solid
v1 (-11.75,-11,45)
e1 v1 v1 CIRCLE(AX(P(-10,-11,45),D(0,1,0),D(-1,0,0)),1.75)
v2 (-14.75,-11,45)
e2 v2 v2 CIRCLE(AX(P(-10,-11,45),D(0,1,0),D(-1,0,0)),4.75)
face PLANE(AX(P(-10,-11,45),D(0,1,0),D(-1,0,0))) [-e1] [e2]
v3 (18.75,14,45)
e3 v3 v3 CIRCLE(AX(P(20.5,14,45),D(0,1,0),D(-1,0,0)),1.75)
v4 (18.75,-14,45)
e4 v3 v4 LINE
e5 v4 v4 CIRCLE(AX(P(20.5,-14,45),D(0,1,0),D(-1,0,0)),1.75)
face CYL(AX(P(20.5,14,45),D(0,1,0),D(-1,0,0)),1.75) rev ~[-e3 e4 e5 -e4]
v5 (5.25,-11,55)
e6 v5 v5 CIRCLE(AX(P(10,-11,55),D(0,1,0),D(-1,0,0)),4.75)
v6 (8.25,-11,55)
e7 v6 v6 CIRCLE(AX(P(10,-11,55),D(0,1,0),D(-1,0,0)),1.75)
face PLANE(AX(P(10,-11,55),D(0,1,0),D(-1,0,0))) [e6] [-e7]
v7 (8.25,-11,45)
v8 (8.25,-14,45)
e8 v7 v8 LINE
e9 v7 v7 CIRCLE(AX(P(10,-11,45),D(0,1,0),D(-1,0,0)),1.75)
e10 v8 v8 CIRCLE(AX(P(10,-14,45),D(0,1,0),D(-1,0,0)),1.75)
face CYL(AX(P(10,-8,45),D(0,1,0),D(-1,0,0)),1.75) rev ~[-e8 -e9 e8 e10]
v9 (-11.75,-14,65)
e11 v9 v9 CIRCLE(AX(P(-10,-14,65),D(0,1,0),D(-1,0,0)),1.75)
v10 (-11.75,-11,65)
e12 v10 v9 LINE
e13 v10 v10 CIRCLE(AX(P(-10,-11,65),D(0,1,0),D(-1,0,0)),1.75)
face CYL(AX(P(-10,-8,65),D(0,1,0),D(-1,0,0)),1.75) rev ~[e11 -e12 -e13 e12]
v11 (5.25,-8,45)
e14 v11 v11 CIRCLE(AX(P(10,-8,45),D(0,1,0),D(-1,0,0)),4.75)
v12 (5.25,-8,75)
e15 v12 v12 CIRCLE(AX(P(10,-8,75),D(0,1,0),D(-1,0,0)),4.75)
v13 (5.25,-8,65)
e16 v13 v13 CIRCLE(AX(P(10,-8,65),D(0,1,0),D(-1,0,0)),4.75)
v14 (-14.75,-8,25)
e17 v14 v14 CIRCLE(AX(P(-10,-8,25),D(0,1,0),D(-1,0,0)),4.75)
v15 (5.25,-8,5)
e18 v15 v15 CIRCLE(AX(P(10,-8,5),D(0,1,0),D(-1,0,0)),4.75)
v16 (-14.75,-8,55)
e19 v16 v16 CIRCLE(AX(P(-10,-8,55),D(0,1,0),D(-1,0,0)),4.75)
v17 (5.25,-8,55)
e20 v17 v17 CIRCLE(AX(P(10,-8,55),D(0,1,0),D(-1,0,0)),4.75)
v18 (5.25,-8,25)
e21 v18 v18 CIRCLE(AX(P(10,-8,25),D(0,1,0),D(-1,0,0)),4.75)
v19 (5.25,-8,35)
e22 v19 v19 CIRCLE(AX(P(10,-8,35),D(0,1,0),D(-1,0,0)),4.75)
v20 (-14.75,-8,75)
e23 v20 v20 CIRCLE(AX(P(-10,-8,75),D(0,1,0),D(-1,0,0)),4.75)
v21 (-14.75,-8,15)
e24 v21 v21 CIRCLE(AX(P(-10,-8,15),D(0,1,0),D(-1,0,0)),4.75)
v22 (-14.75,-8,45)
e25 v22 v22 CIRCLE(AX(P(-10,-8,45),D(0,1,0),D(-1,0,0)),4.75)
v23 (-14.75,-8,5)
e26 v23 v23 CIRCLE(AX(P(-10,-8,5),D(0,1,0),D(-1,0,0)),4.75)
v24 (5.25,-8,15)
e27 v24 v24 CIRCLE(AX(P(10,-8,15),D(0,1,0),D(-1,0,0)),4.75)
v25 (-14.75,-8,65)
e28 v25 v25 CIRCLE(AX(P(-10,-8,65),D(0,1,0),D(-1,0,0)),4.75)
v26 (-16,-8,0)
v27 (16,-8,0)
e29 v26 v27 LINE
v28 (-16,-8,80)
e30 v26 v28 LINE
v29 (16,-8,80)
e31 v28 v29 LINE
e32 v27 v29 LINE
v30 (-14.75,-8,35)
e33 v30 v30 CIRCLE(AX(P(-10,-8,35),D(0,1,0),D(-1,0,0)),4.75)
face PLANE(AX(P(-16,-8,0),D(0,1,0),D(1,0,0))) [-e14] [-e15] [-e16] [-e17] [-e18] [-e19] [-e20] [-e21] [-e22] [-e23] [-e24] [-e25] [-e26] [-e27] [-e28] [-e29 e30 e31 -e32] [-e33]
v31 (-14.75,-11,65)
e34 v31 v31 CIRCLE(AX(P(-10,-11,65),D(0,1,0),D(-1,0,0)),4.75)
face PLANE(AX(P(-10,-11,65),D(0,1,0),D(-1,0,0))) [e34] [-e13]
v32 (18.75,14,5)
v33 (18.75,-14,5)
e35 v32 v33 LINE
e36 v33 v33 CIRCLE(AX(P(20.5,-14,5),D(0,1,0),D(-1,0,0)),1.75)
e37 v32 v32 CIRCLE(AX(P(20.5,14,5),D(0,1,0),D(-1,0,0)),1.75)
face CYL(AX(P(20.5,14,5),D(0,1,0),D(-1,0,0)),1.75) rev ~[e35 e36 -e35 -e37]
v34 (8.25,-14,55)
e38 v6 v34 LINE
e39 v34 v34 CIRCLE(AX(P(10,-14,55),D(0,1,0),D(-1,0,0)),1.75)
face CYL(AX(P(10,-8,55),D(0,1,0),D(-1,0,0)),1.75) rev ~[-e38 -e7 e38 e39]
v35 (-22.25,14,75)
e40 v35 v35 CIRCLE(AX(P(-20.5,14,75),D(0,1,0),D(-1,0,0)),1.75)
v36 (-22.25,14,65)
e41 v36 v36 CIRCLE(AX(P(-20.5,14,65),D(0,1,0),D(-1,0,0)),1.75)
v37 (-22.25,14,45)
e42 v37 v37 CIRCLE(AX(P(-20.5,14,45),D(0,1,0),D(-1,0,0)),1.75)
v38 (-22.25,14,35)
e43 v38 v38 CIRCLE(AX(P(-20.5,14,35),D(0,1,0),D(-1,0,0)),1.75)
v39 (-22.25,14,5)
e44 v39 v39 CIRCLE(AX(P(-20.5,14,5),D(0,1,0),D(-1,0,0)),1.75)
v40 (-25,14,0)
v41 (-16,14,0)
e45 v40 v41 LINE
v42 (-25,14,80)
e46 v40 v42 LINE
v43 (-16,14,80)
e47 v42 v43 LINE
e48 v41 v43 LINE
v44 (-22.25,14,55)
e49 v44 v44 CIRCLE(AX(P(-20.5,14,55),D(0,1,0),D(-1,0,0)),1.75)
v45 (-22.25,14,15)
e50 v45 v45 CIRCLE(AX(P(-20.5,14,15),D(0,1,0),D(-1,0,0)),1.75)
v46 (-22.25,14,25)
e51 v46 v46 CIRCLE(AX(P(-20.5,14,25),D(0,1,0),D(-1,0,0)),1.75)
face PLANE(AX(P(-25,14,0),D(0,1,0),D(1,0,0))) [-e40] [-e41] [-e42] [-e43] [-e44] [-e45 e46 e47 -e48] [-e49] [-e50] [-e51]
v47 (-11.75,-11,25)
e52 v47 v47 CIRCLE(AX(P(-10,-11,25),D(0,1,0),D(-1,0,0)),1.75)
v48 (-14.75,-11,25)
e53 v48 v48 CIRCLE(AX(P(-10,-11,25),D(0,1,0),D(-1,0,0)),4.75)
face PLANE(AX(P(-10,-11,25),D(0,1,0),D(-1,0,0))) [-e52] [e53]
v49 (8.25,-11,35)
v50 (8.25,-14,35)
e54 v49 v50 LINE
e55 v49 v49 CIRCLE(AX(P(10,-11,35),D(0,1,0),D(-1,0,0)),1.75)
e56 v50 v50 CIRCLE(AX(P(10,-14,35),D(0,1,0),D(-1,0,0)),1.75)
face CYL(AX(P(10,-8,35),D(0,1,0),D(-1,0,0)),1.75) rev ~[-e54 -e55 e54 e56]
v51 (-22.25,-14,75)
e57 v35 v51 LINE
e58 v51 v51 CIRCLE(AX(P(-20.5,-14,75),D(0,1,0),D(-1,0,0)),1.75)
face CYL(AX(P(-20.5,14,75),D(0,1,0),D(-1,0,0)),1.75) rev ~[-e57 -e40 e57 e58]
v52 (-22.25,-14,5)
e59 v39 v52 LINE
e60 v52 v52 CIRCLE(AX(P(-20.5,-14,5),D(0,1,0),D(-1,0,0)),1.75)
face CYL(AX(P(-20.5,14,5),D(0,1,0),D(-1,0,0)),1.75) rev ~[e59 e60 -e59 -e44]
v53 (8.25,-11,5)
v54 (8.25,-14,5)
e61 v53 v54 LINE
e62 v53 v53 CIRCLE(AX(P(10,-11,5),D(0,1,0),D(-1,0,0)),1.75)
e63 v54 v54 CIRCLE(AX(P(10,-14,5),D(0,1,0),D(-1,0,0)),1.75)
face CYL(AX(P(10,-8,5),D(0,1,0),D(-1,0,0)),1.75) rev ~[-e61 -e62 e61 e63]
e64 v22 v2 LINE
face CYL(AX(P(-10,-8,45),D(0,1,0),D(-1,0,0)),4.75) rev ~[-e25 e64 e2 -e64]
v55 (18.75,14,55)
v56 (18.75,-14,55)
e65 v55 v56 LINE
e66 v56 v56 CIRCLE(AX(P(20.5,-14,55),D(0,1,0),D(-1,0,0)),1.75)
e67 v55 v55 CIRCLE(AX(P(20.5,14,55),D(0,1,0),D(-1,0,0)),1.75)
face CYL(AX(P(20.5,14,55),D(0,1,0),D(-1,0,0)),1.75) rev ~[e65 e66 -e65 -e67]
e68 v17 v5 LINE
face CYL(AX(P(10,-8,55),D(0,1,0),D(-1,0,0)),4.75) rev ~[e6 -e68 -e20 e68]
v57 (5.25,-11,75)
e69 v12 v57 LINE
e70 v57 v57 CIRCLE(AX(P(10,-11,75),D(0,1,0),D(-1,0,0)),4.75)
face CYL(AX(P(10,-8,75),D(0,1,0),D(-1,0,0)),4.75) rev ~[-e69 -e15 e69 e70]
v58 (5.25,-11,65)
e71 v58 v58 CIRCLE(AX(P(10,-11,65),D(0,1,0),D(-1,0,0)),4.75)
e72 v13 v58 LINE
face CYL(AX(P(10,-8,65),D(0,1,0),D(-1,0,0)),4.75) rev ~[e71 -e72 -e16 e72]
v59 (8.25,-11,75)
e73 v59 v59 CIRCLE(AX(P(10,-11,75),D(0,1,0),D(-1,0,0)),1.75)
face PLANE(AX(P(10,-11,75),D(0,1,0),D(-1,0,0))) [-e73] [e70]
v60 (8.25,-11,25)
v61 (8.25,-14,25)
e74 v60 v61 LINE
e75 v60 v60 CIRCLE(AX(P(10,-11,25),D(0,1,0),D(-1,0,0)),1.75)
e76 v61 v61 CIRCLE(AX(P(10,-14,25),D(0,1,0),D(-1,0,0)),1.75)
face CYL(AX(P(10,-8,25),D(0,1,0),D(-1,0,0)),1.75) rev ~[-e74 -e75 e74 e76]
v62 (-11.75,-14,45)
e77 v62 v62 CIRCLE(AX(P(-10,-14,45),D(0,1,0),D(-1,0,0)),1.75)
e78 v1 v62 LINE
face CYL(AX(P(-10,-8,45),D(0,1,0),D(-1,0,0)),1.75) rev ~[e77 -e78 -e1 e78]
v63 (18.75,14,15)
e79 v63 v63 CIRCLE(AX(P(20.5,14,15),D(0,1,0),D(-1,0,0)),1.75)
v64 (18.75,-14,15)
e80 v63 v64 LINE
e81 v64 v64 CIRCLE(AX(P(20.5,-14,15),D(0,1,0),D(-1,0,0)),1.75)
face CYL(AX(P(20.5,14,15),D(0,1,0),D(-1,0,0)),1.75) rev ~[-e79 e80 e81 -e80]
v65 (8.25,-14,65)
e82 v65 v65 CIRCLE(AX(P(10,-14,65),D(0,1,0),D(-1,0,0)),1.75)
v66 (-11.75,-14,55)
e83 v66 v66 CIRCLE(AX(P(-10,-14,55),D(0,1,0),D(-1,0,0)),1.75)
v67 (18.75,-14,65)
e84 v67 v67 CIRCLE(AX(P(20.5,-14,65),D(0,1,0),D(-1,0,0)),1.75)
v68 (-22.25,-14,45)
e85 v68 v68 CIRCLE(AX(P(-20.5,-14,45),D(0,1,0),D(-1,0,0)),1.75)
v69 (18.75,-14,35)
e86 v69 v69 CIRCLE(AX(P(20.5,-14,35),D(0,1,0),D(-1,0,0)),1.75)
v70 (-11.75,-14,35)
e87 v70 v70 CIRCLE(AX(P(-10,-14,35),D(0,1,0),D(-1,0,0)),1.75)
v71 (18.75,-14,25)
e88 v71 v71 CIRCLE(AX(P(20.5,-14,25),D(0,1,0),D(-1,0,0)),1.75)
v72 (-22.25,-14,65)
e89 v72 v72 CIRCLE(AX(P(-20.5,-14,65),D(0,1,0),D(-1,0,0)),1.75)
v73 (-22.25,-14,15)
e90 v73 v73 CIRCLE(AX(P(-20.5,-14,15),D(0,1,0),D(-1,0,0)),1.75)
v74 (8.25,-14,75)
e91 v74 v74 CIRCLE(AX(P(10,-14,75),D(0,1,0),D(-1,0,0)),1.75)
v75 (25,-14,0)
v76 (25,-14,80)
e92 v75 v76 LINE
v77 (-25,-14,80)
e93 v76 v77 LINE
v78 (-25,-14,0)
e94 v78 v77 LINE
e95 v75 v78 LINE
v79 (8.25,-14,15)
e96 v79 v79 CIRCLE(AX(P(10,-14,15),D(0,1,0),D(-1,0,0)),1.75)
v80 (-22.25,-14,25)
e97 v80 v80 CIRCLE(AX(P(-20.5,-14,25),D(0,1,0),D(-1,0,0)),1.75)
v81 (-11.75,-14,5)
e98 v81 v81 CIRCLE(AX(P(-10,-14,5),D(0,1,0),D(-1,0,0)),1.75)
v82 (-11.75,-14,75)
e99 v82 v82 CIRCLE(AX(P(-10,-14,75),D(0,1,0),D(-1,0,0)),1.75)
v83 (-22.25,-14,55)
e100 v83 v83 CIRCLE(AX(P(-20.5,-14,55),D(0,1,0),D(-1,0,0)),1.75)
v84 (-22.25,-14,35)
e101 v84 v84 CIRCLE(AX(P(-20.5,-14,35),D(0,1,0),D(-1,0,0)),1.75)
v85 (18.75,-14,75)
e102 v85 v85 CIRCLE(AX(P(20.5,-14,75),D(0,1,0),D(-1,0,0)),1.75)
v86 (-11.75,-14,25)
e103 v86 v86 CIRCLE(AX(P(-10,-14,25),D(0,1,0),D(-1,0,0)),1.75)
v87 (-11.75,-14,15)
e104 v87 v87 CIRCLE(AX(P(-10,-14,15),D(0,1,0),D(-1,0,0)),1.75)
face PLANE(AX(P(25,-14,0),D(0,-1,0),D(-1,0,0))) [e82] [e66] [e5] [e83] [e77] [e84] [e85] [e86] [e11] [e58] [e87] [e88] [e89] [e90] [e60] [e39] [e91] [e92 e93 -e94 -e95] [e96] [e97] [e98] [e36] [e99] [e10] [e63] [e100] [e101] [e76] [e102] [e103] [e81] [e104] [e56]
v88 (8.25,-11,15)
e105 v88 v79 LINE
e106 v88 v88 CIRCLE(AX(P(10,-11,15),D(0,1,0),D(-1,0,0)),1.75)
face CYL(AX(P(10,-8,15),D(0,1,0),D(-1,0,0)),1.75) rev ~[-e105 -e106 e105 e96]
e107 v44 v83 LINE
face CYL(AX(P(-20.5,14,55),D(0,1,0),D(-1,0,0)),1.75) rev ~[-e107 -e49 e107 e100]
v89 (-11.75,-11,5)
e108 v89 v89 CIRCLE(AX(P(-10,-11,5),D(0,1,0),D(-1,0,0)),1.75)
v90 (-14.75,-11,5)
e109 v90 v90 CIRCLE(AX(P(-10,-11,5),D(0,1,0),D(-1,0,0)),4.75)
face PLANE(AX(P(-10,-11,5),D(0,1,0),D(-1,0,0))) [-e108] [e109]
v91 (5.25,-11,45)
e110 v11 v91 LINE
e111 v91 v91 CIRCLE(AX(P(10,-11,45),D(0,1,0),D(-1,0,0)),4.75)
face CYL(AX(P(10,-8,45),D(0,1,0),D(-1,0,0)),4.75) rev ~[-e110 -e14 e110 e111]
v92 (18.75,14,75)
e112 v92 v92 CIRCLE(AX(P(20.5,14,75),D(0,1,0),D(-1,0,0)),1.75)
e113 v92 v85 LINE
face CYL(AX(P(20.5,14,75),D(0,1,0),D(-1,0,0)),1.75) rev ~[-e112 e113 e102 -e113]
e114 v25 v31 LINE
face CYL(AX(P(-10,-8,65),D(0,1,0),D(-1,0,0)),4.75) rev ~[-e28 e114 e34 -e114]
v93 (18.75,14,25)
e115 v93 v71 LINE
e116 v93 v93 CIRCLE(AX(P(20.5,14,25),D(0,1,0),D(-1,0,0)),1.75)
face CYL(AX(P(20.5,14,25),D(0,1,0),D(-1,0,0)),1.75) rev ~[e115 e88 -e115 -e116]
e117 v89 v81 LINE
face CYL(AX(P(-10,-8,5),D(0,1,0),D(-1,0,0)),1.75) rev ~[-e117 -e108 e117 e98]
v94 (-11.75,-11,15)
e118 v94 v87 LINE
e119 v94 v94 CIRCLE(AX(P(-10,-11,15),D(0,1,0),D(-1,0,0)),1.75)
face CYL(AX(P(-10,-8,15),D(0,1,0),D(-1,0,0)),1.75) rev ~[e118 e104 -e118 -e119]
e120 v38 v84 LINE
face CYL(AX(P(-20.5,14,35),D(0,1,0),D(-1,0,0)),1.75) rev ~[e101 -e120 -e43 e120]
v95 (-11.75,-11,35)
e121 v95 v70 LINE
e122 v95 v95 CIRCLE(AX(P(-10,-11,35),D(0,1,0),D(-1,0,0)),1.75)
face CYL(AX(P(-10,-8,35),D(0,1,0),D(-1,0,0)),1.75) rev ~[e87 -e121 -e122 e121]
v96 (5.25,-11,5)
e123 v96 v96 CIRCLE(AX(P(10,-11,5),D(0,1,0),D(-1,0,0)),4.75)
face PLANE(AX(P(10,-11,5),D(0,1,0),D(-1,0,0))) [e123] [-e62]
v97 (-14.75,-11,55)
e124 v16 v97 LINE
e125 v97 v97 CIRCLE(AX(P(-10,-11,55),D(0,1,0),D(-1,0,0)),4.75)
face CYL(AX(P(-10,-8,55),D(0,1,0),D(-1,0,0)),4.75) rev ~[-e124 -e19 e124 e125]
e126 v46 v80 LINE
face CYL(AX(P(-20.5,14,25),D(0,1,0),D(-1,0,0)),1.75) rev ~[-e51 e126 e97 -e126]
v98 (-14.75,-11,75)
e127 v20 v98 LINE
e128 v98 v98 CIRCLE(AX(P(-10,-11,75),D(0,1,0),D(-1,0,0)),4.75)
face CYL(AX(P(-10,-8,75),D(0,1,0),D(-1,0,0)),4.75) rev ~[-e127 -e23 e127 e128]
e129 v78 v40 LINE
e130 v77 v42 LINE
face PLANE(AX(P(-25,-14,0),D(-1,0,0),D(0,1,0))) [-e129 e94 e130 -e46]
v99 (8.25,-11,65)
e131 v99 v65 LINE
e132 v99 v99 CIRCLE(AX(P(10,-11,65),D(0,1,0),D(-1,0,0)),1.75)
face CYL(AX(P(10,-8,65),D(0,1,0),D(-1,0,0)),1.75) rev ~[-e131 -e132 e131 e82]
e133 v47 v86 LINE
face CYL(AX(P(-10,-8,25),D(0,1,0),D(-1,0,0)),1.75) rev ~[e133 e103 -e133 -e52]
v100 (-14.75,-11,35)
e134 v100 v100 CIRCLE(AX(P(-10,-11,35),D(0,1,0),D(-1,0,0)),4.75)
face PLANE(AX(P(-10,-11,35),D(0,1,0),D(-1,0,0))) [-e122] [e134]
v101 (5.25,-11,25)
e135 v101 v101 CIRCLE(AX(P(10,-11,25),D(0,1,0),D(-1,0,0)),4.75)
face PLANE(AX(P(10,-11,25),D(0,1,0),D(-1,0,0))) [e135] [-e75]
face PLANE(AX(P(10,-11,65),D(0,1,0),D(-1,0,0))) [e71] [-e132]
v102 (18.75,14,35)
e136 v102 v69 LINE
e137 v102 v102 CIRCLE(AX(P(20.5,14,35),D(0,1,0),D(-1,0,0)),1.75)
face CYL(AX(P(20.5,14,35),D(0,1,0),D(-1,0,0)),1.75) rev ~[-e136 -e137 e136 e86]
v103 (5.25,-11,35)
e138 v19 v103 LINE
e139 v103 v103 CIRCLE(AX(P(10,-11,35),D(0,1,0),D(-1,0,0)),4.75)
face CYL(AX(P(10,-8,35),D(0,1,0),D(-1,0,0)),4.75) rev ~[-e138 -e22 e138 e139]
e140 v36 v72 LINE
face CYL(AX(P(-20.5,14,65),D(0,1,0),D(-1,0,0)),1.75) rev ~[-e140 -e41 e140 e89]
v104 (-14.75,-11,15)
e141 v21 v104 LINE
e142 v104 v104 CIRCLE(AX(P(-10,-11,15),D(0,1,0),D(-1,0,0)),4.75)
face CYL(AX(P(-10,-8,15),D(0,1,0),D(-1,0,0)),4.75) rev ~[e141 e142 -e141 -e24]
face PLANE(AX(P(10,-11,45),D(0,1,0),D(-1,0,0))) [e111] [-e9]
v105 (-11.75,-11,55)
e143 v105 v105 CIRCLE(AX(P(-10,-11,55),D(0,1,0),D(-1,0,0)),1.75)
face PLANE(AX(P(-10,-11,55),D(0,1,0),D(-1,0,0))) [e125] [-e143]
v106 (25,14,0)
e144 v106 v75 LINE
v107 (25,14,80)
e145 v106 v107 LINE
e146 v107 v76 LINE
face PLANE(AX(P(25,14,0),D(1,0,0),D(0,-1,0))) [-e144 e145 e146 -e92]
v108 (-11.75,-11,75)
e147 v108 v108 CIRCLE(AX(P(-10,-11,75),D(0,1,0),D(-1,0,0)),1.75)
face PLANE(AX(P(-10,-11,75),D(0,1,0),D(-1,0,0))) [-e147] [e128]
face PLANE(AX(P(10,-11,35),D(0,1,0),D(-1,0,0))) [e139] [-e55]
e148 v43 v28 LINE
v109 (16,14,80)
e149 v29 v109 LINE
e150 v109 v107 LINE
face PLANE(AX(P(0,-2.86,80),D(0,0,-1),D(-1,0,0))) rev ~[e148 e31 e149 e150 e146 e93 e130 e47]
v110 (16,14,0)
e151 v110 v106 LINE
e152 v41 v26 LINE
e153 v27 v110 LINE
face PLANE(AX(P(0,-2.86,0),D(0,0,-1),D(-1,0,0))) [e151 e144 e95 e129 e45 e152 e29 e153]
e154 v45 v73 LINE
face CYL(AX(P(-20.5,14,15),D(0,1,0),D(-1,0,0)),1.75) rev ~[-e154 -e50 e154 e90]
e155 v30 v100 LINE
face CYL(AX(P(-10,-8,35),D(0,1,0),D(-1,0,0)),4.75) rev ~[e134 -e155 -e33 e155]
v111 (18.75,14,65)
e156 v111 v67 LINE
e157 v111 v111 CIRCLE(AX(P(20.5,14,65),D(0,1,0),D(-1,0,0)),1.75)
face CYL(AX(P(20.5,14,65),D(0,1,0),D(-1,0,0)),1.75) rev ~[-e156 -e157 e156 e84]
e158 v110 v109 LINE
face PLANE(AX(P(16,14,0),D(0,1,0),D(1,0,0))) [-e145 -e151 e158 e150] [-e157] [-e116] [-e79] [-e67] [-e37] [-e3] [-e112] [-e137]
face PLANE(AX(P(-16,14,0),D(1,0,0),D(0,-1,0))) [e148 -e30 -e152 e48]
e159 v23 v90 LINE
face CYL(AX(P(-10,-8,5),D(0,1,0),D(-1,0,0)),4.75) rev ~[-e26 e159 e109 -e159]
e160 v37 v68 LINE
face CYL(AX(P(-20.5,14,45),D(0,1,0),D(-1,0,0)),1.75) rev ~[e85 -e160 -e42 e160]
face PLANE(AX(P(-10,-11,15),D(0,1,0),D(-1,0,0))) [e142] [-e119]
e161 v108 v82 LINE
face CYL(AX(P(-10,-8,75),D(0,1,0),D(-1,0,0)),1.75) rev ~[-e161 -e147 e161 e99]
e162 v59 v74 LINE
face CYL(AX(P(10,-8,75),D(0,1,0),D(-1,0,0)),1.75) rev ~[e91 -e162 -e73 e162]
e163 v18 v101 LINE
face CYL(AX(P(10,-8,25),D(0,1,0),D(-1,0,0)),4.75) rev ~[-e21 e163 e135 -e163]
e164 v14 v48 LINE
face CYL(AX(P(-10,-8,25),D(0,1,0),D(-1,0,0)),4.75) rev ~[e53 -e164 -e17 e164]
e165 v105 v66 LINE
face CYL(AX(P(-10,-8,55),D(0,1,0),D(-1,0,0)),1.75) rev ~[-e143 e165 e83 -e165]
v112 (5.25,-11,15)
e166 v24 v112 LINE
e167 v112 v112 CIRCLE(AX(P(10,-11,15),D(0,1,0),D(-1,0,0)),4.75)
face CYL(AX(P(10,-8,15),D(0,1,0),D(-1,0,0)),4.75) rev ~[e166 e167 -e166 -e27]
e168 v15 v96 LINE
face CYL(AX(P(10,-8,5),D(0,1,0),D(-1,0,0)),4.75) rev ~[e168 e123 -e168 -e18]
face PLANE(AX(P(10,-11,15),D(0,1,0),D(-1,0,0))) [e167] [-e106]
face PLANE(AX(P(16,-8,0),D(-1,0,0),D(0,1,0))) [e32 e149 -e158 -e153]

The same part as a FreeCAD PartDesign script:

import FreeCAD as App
import Part
import Sketcher
from FreeCAD import Vector

doc = App.newDocument("Part")
body = doc.addObject("PartDesign::Body", "Body")

# Sketch on XY plane
sketch1 = body.newObject("Sketcher::SketchObject", "Sketch")
sketch1.AttachmentSupport = (doc.getObject("XY_Plane"), [""])
sketch1.MapMode = "FlatFace"
sketch1.addGeometry([
    Part.LineSegment(Vector(25, 14, 0), Vector(16, 14, 0)),  # 0
    Part.LineSegment(Vector(16, 14, 0), Vector(16, -8, 0)),  # 1
    Part.LineSegment(Vector(16, -8, 0), Vector(-16, -8, 0)),  # 2
    Part.LineSegment(Vector(-16, -8, 0), Vector(-16, 14, 0)),  # 3
    Part.LineSegment(Vector(-16, 14, 0), Vector(-25, 14, 0)),  # 4
    Part.LineSegment(Vector(-25, 14, 0), Vector(-25, -14, 0)),  # 5
    Part.LineSegment(Vector(-25, -14, 0), Vector(25, -14, 0)),  # 6
    Part.LineSegment(Vector(25, -14, 0), Vector(25, 14, 0)),  # 7
], False)
sketch1.addConstraint([
    Sketcher.Constraint("Coincident", 0, 2, 1, 1),
    Sketcher.Constraint("Coincident", 1, 2, 2, 1),
    Sketcher.Constraint("Coincident", 2, 2, 3, 1),
    Sketcher.Constraint("Coincident", 3, 2, 4, 1),
    Sketcher.Constraint("Coincident", 4, 2, 5, 1),
    Sketcher.Constraint("Coincident", 5, 2, 6, 1),
    Sketcher.Constraint("Coincident", 6, 2, 7, 1),
    Sketcher.Constraint("Coincident", 7, 2, 0, 1),
    Sketcher.Constraint("Horizontal", 0),
    Sketcher.Constraint("Vertical", 1),
    Sketcher.Constraint("Horizontal", 2),
    Sketcher.Constraint("Vertical", 3),
    Sketcher.Constraint("Horizontal", 4),
    Sketcher.Constraint("Vertical", 5),
    Sketcher.Constraint("Horizontal", 6),
    Sketcher.Constraint("Vertical", 7),
    Sketcher.Constraint("Symmetric", 4, 2, 6, 2, -1, 1),
    Sketcher.Constraint("Symmetric", 0, 2, 3, 2, -2),
    Sketcher.Constraint("DistanceX", 0, 2, 0, 1, 9.0),
    Sketcher.Constraint("DistanceX", 2, 2, 2, 1, 32.0),
    Sketcher.Constraint("DistanceY", 1, 2, 1, 1, 22.0),
    Sketcher.Constraint("DistanceY", 5, 2, 5, 1, 28.0),
])
pad1 = body.newObject("PartDesign::Pad", "Pad")
pad1.Profile = sketch1
pad1.Length = 80

# Sketch on XZ plane
sketch2 = body.newObject("Sketcher::SketchObject", "Sketch001")
sketch2.AttachmentSupport = (doc.getObject("XZ_Plane"), [""])
sketch2.MapMode = "FlatFace"
sketch2.AttachmentOffset = App.Placement(Vector(0, 0, 8), App.Rotation())
sketch2.addGeometry([
    Part.Circle(Vector(-10, 5, 0), Vector(0, 0, 1), 1.75),
    Part.Circle(Vector(10, 5, 0), Vector(0, 0, 1), 1.75),
], False)
sketch2.addConstraint([
    Sketcher.Constraint("Equal", 0, 1),
    Sketcher.Constraint("Symmetric", 0, 3, 1, 3, -2),
    Sketcher.Constraint("Diameter", 0, 3.5),
    Sketcher.Constraint("DistanceX", 0, 3, -1, 1, 10.0),
    Sketcher.Constraint("DistanceY", -1, 1, 0, 3, 5.0),
])
pocket1 = body.newObject("PartDesign::Pocket", "Pocket")
pocket1.Profile = sketch2
pocket1.Type = "ThroughAll"
pocket1.Reversed = True

# Sketch on XZ plane
sketch3 = body.newObject("Sketcher::SketchObject", "Sketch002")
sketch3.AttachmentSupport = (doc.getObject("XZ_Plane"), [""])
sketch3.MapMode = "FlatFace"
sketch3.AttachmentOffset = App.Placement(Vector(0, 0, 8), App.Rotation())
sketch3.addGeometry([
    Part.Circle(Vector(-10, 5, 0), Vector(0, 0, 1), 4.75),
    Part.Circle(Vector(10, 5, 0), Vector(0, 0, 1), 4.75),
], False)
sketch3.addConstraint([
    Sketcher.Constraint("Equal", 0, 1),
    Sketcher.Constraint("Symmetric", 0, 3, 1, 3, -2),
    Sketcher.Constraint("Diameter", 0, 9.5),
    Sketcher.Constraint("DistanceX", 0, 3, -1, 1, 10.0),
    Sketcher.Constraint("DistanceY", -1, 1, 0, 3, 5.0),
])
pocket2 = body.newObject("PartDesign::Pocket", "Pocket001")
pocket2.Profile = sketch3
pocket2.Length = 3
pocket2.Reversed = True

# Sketch on XZ plane
sketch4 = body.newObject("Sketcher::SketchObject", "Sketch003")
sketch4.AttachmentSupport = (doc.getObject("XZ_Plane"), [""])
sketch4.MapMode = "FlatFace"
sketch4.AttachmentOffset = App.Placement(Vector(0, 0, -14), App.Rotation())
sketch4.addGeometry([
    Part.Circle(Vector(-20.5, 5, 0), Vector(0, 0, 1), 1.75),
    Part.Circle(Vector(20.5, 5, 0), Vector(0, 0, 1), 1.75),
], False)
sketch4.addConstraint([
    Sketcher.Constraint("Equal", 0, 1),
    Sketcher.Constraint("Symmetric", 0, 3, 1, 3, -2),
    Sketcher.Constraint("Diameter", 0, 3.5),
    Sketcher.Constraint("DistanceY", -1, 1, 0, 3, 5.0),
    Sketcher.Constraint("DistanceX", 0, 3, 1, 3, 41.0),
])
pocket3 = body.newObject("PartDesign::Pocket", "Pocket002")
pocket3.Profile = sketch4
pocket3.Type = "ThroughAll"
pocket3.Reversed = True
doc.recompute()

linearpattern = body.newObject("PartDesign::LinearPattern", "LinearPattern")
linearpattern.Originals = [pocket1, pocket2, pocket3]
linearpattern.Direction = (doc.getObject("Z_Axis"), [""])
linearpattern.Mode = "offset"
linearpattern.Offset = 10
linearpattern.Occurrences = 8
body.Tip = linearpattern

doc.recompute()
